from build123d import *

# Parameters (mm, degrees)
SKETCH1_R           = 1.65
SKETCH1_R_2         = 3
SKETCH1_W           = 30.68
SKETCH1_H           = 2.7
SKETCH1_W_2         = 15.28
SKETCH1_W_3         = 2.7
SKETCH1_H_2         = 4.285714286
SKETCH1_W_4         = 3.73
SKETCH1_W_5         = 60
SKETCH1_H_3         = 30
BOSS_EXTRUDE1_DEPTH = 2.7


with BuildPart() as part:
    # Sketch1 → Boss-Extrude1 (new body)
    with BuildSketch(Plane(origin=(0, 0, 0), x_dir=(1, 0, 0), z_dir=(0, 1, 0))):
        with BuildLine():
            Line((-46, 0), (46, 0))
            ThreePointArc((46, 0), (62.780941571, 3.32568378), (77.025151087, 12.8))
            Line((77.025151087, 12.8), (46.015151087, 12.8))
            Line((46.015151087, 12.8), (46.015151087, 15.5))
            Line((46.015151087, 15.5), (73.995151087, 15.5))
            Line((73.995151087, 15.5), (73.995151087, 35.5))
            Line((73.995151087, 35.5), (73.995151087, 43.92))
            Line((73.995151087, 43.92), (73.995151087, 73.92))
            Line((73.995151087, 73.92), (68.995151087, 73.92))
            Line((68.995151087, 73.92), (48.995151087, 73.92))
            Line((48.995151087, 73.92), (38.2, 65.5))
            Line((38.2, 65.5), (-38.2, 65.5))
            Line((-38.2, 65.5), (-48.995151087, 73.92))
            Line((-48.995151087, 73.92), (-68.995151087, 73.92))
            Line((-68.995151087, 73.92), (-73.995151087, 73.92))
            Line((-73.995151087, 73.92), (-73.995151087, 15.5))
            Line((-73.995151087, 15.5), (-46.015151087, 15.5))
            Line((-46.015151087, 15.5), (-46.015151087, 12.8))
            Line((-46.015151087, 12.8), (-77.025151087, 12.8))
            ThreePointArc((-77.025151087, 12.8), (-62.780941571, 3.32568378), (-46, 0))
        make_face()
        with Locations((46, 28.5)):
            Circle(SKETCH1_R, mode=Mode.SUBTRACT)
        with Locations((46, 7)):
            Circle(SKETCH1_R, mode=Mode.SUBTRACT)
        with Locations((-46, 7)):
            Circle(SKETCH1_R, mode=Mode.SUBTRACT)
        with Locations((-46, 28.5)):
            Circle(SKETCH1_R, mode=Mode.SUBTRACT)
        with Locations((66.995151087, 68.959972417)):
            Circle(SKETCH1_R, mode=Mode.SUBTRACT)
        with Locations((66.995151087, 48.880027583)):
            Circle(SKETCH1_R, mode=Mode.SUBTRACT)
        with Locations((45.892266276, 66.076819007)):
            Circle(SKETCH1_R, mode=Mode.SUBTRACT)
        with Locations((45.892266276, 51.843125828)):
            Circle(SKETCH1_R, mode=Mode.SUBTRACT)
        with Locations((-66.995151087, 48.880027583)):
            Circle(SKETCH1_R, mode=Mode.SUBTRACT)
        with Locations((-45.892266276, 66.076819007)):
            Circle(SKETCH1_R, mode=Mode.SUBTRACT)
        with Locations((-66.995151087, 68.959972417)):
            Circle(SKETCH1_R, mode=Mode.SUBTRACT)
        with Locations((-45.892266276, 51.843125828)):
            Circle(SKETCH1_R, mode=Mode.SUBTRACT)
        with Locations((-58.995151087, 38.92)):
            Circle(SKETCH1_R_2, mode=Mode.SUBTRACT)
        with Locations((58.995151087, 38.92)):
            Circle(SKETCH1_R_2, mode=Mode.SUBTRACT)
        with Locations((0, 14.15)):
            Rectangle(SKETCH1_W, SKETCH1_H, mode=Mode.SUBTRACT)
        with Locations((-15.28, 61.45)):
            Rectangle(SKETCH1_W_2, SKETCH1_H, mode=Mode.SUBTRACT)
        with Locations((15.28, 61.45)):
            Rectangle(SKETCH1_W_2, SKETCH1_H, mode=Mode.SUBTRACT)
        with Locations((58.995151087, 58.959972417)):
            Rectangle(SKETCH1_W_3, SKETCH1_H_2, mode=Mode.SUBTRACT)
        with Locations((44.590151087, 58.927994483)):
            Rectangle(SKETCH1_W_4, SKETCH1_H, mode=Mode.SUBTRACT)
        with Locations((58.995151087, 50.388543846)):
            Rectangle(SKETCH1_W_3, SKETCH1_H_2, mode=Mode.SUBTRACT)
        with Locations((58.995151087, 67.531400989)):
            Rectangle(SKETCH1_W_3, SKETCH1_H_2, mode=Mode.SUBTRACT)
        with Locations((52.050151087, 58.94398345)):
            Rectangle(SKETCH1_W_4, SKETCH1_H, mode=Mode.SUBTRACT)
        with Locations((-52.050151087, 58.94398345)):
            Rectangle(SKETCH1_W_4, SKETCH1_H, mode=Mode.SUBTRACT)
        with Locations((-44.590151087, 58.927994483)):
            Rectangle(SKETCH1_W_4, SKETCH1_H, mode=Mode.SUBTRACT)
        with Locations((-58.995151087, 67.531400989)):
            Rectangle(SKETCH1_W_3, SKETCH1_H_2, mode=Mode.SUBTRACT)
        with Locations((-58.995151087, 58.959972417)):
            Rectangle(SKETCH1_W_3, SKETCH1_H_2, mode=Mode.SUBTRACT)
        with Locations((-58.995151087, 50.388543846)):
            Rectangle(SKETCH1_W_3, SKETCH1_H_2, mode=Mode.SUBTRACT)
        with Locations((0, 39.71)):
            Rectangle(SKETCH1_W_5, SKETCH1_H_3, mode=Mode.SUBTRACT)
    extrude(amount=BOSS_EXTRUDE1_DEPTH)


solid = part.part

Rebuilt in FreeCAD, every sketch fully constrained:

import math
import FreeCAD as App
import Part
import Sketcher


def add_polygon(sketch, points):
    """Adds a closed chain of lines whose ends are joined by coincident constraints."""
    first, n = sketch.GeometryCount, len(points)
    for a, b in zip(points, points[1:] + points[:1]):
        sketch.addGeometry(Part.LineSegment(App.Vector(*a, 0), App.Vector(*b, 0)), False)
    for i in range(n):
        sketch.addConstraint(Sketcher.Constraint("Coincident", first + i, 2, first + (i + 1) % n, 1))

doc = App.newDocument("Part")
params = doc.addObject("Spreadsheet::Sheet", "Params")
for row, (alias, value) in enumerate([
    ("sketch1_diameter", "6 mm"),
    ("sketch1_radius", "44 mm"),
    ("sketch1_diameter2", "3.3 mm"),
    ("sketch1_width", "92 mm"),
    ("sketch1_width2", "25 mm"),
    ("pad1_length", "2.7 mm"),
], start=1):
    params.set(f"A{row}", alias)
    params.set(f"B{row}", "=" + value)
    params.setAlias(f"B{row}", alias)

body = doc.addObject("PartDesign::Body", "Body")

# Sketch on XZ plane
sketch1 = body.newObject("Sketcher::SketchObject", "Sketch")
sketch1.AttachmentSupport = (doc.getObject("XZ_Plane"), [""])
sketch1.MapMode = "FlatFace"
sketch1.addGeometry(Part.LineSegment(App.Vector(-46, 0, 0), App.Vector(46, 0, 0)), False)  # 0
sketch1.addGeometry(Part.ArcOfCircle(Part.Circle(App.Vector(46, -44, 0), App.Vector(0, 0, 1), 44), math.radians(45), math.radians(90)), False)  # 1
sketch1.addGeometry(Part.LineSegment(App.Vector(77, -12.8, 0), App.Vector(46, -12.8, 0)), False)  # 2
sketch1.addGeometry(Part.LineSegment(App.Vector(46, -12.8, 0), App.Vector(46, -15.5, 0)), False)  # 3
sketch1.addGeometry(Part.LineSegment(App.Vector(46, -15.5, 0), App.Vector(74, -15.5, 0)), False)  # 4
sketch1.addGeometry(Part.LineSegment(App.Vector(74, -15.5, 0), App.Vector(74, -73.9, 0)), False)  # 5
sketch1.addGeometry(Part.LineSegment(App.Vector(74, -73.9, 0), App.Vector(49, -73.9, 0)), False)  # 6
sketch1.addGeometry(Part.LineSegment(App.Vector(49, -73.9, 0), App.Vector(38.2, -65.5, 0)), False)  # 7
sketch1.addGeometry(Part.LineSegment(App.Vector(38.2, -65.5, 0), App.Vector(-38.2, -65.5, 0)), False)  # 8
sketch1.addGeometry(Part.LineSegment(App.Vector(-38.2, -65.5, 0), App.Vector(-49, -73.9, 0)), False)  # 9
sketch1.addGeometry(Part.LineSegment(App.Vector(-49, -73.9, 0), App.Vector(-74, -73.9, 0)), False)  # 10
sketch1.addGeometry(Part.LineSegment(App.Vector(-74, -73.9, 0), App.Vector(-74, -15.5, 0)), False)  # 11
sketch1.addGeometry(Part.LineSegment(App.Vector(-74, -15.5, 0), App.Vector(-46, -15.5, 0)), False)  # 12
sketch1.addGeometry(Part.LineSegment(App.Vector(-46, -15.5, 0), App.Vector(-46, -12.8, 0)), False)  # 13
sketch1.addGeometry(Part.LineSegment(App.Vector(-46, -12.8, 0), App.Vector(-77, -12.8, 0)), False)  # 14
sketch1.addGeometry(Part.ArcOfCircle(Part.Circle(App.Vector(-46, -44, 0), App.Vector(0, 0, 1), 44), math.radians(90), math.radians(135)), False)  # 15
sketch1.addGeometry(Part.Circle(App.Vector(-46, -7, 0), App.Vector(0, 0, 1), 1.6), False)  # 16
sketch1.addGeometry(Part.Circle(App.Vector(-46, -28.5, 0), App.Vector(0, 0, 1), 1.6), False)  # 17
add_polygon(sketch1, [(15.3, -12.8), (-15.3, -12.8), (-15.3, -15.5), (15.3, -15.5)])  # lines 18-21
sketch1.addGeometry(Part.Circle(App.Vector(46, -7, 0), App.Vector(0, 0, 1), 1.6), False)  # 22
sketch1.addGeometry(Part.Circle(App.Vector(46, -28.5, 0), App.Vector(0, 0, 1), 1.6), False)  # 23
sketch1.addGeometry(Part.Circle(App.Vector(-59, -38.9, 0), App.Vector(0, 0, 1), 3), False)  # 24
sketch1.addGeometry(Part.Circle(App.Vector(-67, -48.9, 0), App.Vector(0, 0, 1), 1.6), False)  # 25
add_polygon(sketch1, [(-57.6, -48.2), (-60.3, -48.2), (-60.3, -52.5), (-57.6, -52.5)])  # lines 26-29
sketch1.addGeometry(Part.Circle(App.Vector(-45.9, -51.8, 0), App.Vector(0, 0, 1), 1.6), False)  # 30
add_polygon(sketch1, [(-57.6, -56.8), (-60.3, -56.8), (-60.3, -61.1), (-57.6, -61.1)])  # lines 31-34
add_polygon(sketch1, [(-50.2, -57.6), (-53.9, -57.6), (-53.9, -60.3), (-50.2, -60.3)])  # lines 35-38
add_polygon(sketch1, [(-42.7, -57.6), (-46.5, -57.6), (-46.5, -60.3), (-42.7, -60.3)])  # lines 39-42
sketch1.addGeometry(Part.Circle(App.Vector(-67, -69, 0), App.Vector(0, 0, 1), 1.6), False)  # 43
add_polygon(sketch1, [(-57.6, -65.4), (-60.3, -65.4), (-60.3, -69.7), (-57.6, -69.7)])  # lines 44-47
sketch1.addGeometry(Part.Circle(App.Vector(-45.9, -66.1, 0), App.Vector(0, 0, 1), 1.6), False)  # 48
add_polygon(sketch1, [(-7.6, -60.1), (-22.9, -60.1), (-22.9, -62.8), (-7.6, -62.8)])  # lines 49-52
add_polygon(sketch1, [(30, -24.7), (-30, -24.7), (-30, -54.7), (30, -54.7)])  # lines 53-56
sketch1.addGeometry(Part.Circle(App.Vector(59, -38.9, 0), App.Vector(0, 0, 1), 3), False)  # 57
sketch1.addGeometry(Part.Circle(App.Vector(45.9, -51.8, 0), App.Vector(0, 0, 1), 1.6), False)  # 58
sketch1.addGeometry(Part.Circle(App.Vector(67, -48.9, 0), App.Vector(0, 0, 1), 1.6), False)  # 59
add_polygon(sketch1, [(60.3, -48.2), (57.6, -48.2), (57.6, -52.5), (60.3, -52.5)])  # lines 60-63
add_polygon(sketch1, [(22.9, -60.1), (7.6, -60.1), (7.6, -62.8), (22.9, -62.8)])  # lines 64-67
add_polygon(sketch1, [(46.5, -57.6), (42.7, -57.6), (42.7, -60.3), (46.5, -60.3)])  # lines 68-71
add_polygon(sketch1, [(53.9, -57.6), (50.2, -57.6), (50.2, -60.3), (53.9, -60.3)])  # lines 72-75
add_polygon(sketch1, [(60.3, -56.8), (57.6, -56.8), (57.6, -61.1), (60.3, -61.1)])  # lines 76-79
sketch1.addGeometry(Part.Circle(App.Vector(45.9, -66.1, 0), App.Vector(0, 0, 1), 1.6), False)  # 80
add_polygon(sketch1, [(60.3, -65.4), (57.6, -65.4), (57.6, -69.7), (60.3, -69.7)])  # lines 81-84
sketch1.addGeometry(Part.Circle(App.Vector(67, -69, 0), App.Vector(0, 0, 1), 1.6), False)  # 85
sketch1.addConstraint([
    Sketcher.Constraint("Tangent", 0, 2, 1, 2),
    Sketcher.Constraint("Coincident", 1, 1, 2, 1),
    Sketcher.Constraint("Coincident", 2, 2, 3, 1),
    Sketcher.Constraint("Coincident", 3, 2, 4, 1),
    Sketcher.Constraint("Coincident", 4, 2, 5, 1),
    Sketcher.Constraint("Coincident", 5, 2, 6, 1),
    Sketcher.Constraint("Coincident", 6, 2, 7, 1),
    Sketcher.Constraint("Coincident", 7, 2, 8, 1),
    Sketcher.Constraint("Coincident", 8, 2, 9, 1),
    Sketcher.Constraint("Coincident", 9, 2, 10, 1),
    Sketcher.Constraint("Coincident", 10, 2, 11, 1),
    Sketcher.Constraint("Coincident", 11, 2, 12, 1),
    Sketcher.Constraint("Coincident", 12, 2, 13, 1),
    Sketcher.Constraint("Coincident", 13, 2, 14, 1),
    Sketcher.Constraint("Coincident", 14, 2, 15, 2),
    Sketcher.Constraint("Tangent", 15, 1, 0, 1),
    Sketcher.Constraint("Horizontal", 0),
    Sketcher.Constraint("Horizontal", 2),
    Sketcher.Constraint("Vertical", 3),
    Sketcher.Constraint("Horizontal", 4),
    Sketcher.Constraint("Vertical", 5),
    Sketcher.Constraint("Horizontal", 6),
    Sketcher.Constraint("Horizontal", 8),
    Sketcher.Constraint("Horizontal", 10),
    Sketcher.Constraint("Vertical", 11),
    Sketcher.Constraint("Horizontal", 12),
    Sketcher.Constraint("Vertical", 13),
    Sketcher.Constraint("Horizontal", 14),
    Sketcher.Constraint("Horizontal", 18),
    Sketcher.Constraint("Vertical", 19),
    Sketcher.Constraint("Horizontal", 20),
    Sketcher.Constraint("Vertical", 21),
    Sketcher.Constraint("Horizontal", 26),
    Sketcher.Constraint("Vertical", 27),
    Sketcher.Constraint("Horizontal", 28),
    Sketcher.Constraint("Vertical", 29),
    Sketcher.Constraint("Horizontal", 31),
    Sketcher.Constraint("Vertical", 32),
    Sketcher.Constraint("Horizontal", 33),
    Sketcher.Constraint("Vertical", 34),
    Sketcher.Constraint("Horizontal", 35),
    Sketcher.Constraint("Vertical", 36),
    Sketcher.Constraint("Horizontal", 37),
    Sketcher.Constraint("Vertical", 38),
    Sketcher.Constraint("Horizontal", 39),
    Sketcher.Constraint("Vertical", 40),
    Sketcher.Constraint("Horizontal", 41),
    Sketcher.Constraint("Vertical", 42),
    Sketcher.Constraint("Horizontal", 44),
    Sketcher.Constraint("Vertical", 45),
    Sketcher.Constraint("Horizontal", 46),
    Sketcher.Constraint("Vertical", 47),
    Sketcher.Constraint("Horizontal", 49),
    Sketcher.Constraint("Vertical", 50),
    Sketcher.Constraint("Horizontal", 51),
    Sketcher.Constraint("Vertical", 52),
    Sketcher.Constraint("Horizontal", 53),
    Sketcher.Constraint("Vertical", 54),
    Sketcher.Constraint("Horizontal", 55),
    Sketcher.Constraint("Vertical", 56),
    Sketcher.Constraint("Horizontal", 60),
    Sketcher.Constraint("Vertical", 61),
    Sketcher.Constraint("Horizontal", 62),
    Sketcher.Constraint("Vertical", 63),
    Sketcher.Constraint("Horizontal", 64),
    Sketcher.Constraint("Vertical", 65),
    Sketcher.Constraint("Horizontal", 66),
    Sketcher.Constraint("Vertical", 67),
    Sketcher.Constraint("Horizontal", 68),
    Sketcher.Constraint("Vertical", 69),
    Sketcher.Constraint("Horizontal", 70),
    Sketcher.Constraint("Vertical", 71),
    Sketcher.Constraint("Horizontal", 72),
    Sketcher.Constraint("Vertical", 73),
    Sketcher.Constraint("Horizontal", 74),
    Sketcher.Constraint("Vertical", 75),
    Sketcher.Constraint("Horizontal", 76),
    Sketcher.Constraint("Vertical", 77),
    Sketcher.Constraint("Horizontal", 78),
    Sketcher.Constraint("Vertical", 79),
    Sketcher.Constraint("Horizontal", 81),
    Sketcher.Constraint("Vertical", 82),
    Sketcher.Constraint("Horizontal", 83),
    Sketcher.Constraint("Vertical", 84),
    Sketcher.Constraint("Equal", 1, 15),
    Sketcher.Constraint("Equal", 16, 17),
    Sketcher.Constraint("Equal", 17, 22),
    Sketcher.Constraint("Equal", 22, 23),
    Sketcher.Constraint("Equal", 23, 25),
    Sketcher.Constraint("Equal", 25, 30),
    Sketcher.Constraint("Equal", 30, 43),
    Sketcher.Constraint("Equal", 43, 48),
    Sketcher.Constraint("Equal", 24, 57),
    Sketcher.Constraint("Equal", 48, 58),
    Sketcher.Constraint("Equal", 58, 59),
    Sketcher.Constraint("Equal", 59, 80),
    Sketcher.Constraint("Equal", 80, 85),
    Sketcher.Constraint("Symmetric", 0, 2, 15, 1, -1, 1),
    Sketcher.Constraint("Symmetric", 16, 3, 22, 3, -2),
    Sketcher.Constraint("Symmetric", 17, 3, 23, 3, -2),
    Sketcher.Constraint("Symmetric", 24, 3, 57, 3, -2),
    Sketcher.Constraint("Symmetric", 30, 3, 58, 3, -2),
    Sketcher.Constraint("Symmetric", 25, 3, 59, 3, -2),
    Sketcher.Constraint("Symmetric", 48, 3, 80, 3, -2),
    Sketcher.Constraint("Symmetric", 43, 3, 85, 3, -2),
    Sketcher.Constraint("Symmetric", 6, 2, 9, 2, -2),
    Sketcher.Constraint("Symmetric", 4, 2, 11, 2, -2),
    Sketcher.Constraint("Symmetric", 2, 2, 13, 2, -2),
    Sketcher.Constraint("Symmetric", 29, 2, 60, 2, -2),
    Sketcher.Constraint("Symmetric", 27, 2, 62, 2, -2),
    Sketcher.Constraint("Symmetric", 52, 2, 64, 2, -2),
    Sketcher.Constraint("Symmetric", 50, 2, 66, 2, -2),
    Sketcher.Constraint("Symmetric", 42, 2, 68, 2, -2),
    Sketcher.Constraint("Symmetric", 40, 2, 70, 2, -2),
    Sketcher.Constraint("Symmetric", 38, 2, 72, 2, -2),
    Sketcher.Constraint("Symmetric", 36, 2, 74, 2, -2),
    Sketcher.Constraint("Symmetric", 34, 2, 76, 2, -2),
    Sketcher.Constraint("Symmetric", 32, 2, 78, 2, -2),
    Sketcher.Constraint("Symmetric", 47, 2, 81, 2, -2),
    Sketcher.Constraint("Symmetric", 45, 2, 83, 2, -2),
    Sketcher.Constraint("Horizontal", 14, 2, 18, 2),
    Sketcher.Constraint("Horizontal", 12, 2, 19, 2),
    Sketcher.Constraint("Vertical", 15, 3, 16, 3),
    Sketcher.Constraint("Vertical", 16, 3, 17, 3),
    Sketcher.Constraint("Vertical", 25, 3, 43, 3),
    Sketcher.Constraint("Vertical", 30, 3, 48, 3),
    Sketcher.Constraint("Vertical", 27, 2, 31, 2),
    Sketcher.Constraint("Vertical", 29, 2, 33, 2),
    Sketcher.Constraint("Vertical", 32, 2, 44, 2),
    Sketcher.Constraint("Vertical", 34, 2, 46, 2),
    Sketcher.Constraint("Equal", 37, 39),
    Sketcher.Constraint("Equal", 83, 3),
    Sketcher.Constraint("Equal", 29, 32),
    Sketcher.Constraint("Equal", 21, 36),
    Sketcher.Constraint("Equal", 38, 40),
    Sketcher.Constraint("Equal", 34, 45),
    Sketcher.Constraint("Equal", 42, 50),
    Sketcher.Constraint("Equal", 7, 9),
    Sketcher.Constraint("Diameter", 24, 6.0),
    Sketcher.Constraint("Radius", 1, 44.0),
    Sketcher.Constraint("Diameter", 16, 3.3),
    Sketcher.Constraint("DistanceX", 0, 1, 0, 2, 92.0),
    Sketcher.Constraint("DistanceX", 6, 2, 6, 1, 25.0),
    Sketcher.Constraint("DistanceX", 53, 2, 53, 1, 60.0),
    Sketcher.Constraint("DistanceY", 54, 2, 54, 1, 30.0),
    Sketcher.Constraint("DistanceX", 8, 2, 8, 1, 76.4),
    Sketcher.Constraint("DistanceX", 26, 2, 26, 1, 2.7),
    Sketcher.Constraint("DistanceY", 16, 3, -1, 1, 7.0),
    Sketcher.Constraint("DistanceX", 53, 2, -1, 1, 30.0),
    Sketcher.Constraint("DistanceX", 2, 2, 2, 1, 31.01),
    Sketcher.Constraint("DistanceX", 4, 1, 4, 2, 27.98),
    Sketcher.Constraint("DistanceX", 18, 2, 18, 1, 30.68),
    Sketcher.Constraint("DistanceX", 35, 2, 35, 1, 3.73),
    Sketcher.Constraint("DistanceX", 49, 2, 49, 1, 15.28),
    Sketcher.Constraint("DistanceY", 5, 2, 5, 1, 58.42),
    Sketcher.Constraint("DistanceY", 17, 3, -1, 1, 28.5),
    Sketcher.Constraint("DistanceY", 1, 1, -1, 1, 12.8),
    Sketcher.Constraint("DistanceY", 7, 2, -1, 1, 65.5),
    Sketcher.Constraint("DistanceY", 49, 2, -1, 1, 60.1),
    Sketcher.Constraint("DistanceY", 24, 3, -1, 1, 38.92),
    Sketcher.Constraint("DistanceX", 18, 2, -1, 1, 15.34),
    Sketcher.Constraint("DistanceX", 49, 2, -1, 1, 22.92),
    Sketcher.Constraint("DistanceY", 53, 2, -1, 1, 24.71),
    Sketcher.Constraint("DistanceY", 27, 2, -1, 1, 52.531401),
    Sketcher.Constraint("DistanceY", 27, 2, 27, 1, 4.285714),
    Sketcher.Constraint("DistanceX", 24, 3, -1, 1, 58.995151),
    Sketcher.Constraint("DistanceX", 25, 3, -1, 1, 66.995151),
    Sketcher.Constraint("DistanceY", 48, 3, -1, 1, 66.076819),
    Sketcher.Constraint("DistanceX", 26, 2, -1, 1, 60.345151),
    Sketcher.Constraint("DistanceY", 32, 2, -1, 1, 61.10283),
    Sketcher.Constraint("DistanceX", 35, 2, -1, 1, 53.915151),
    Sketcher.Constraint("DistanceX", 39, 2, -1, 1, 46.455151),
    Sketcher.Constraint("DistanceY", 45, 2, -1, 1, 69.674258),
    Sketcher.Constraint("DistanceY", 25, 3, -1, 1, 48.880028),
    Sketcher.Constraint("DistanceX", 30, 3, -1, 1, 45.892266),
    Sketcher.Constraint("DistanceY", 30, 3, -1, 1, 51.843126),
    Sketcher.Constraint("DistanceY", 43, 3, -1, 1, 68.959972),
    Sketcher.Constraint("DistanceY", 35, 2, -1, 1, 57.593983),
    Sketcher.Constraint("DistanceY", 39, 2, -1, 1, 57.577994),
])
sketch1.setExpression("Constraints[194]", "Params.sketch1_diameter")
sketch1.setExpression("Constraints[195]", "Params.sketch1_radius")
sketch1.setExpression("Constraints[196]", "Params.sketch1_diameter2")
sketch1.setExpression("Constraints[197]", "Params.sketch1_width")
sketch1.setExpression("Constraints[198]", "Params.sketch1_width2")
pad1 = body.newObject("PartDesign::Pad", "Pad")
pad1.Profile = sketch1
pad1.setExpression("Length", "Params.pad1_length")
pad1.Reversed = True

doc.recompute()
